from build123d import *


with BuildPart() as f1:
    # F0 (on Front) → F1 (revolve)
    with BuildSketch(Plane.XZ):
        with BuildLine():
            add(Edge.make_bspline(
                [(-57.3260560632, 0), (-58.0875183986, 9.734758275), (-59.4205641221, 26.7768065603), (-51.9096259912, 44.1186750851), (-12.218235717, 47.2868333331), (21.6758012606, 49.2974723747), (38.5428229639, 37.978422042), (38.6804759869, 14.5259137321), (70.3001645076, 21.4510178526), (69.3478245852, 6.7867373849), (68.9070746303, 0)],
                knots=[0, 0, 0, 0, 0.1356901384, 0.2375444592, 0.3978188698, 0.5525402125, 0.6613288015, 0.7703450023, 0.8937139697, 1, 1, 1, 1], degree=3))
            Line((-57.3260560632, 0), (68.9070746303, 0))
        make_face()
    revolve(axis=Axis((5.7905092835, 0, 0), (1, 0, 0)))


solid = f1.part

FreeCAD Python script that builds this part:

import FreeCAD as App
import Part
import Sketcher

doc = App.newDocument("Part")
body = doc.addObject("PartDesign::Body", "Body")

# Sketch on XZ plane
sketch1 = body.newObject("Sketcher::SketchObject", "Sketch")
sketch1.AttachmentSupport = (doc.getObject("XZ_Plane"), [""])
sketch1.MapMode = "FlatFace"
sketch1.addGeometry([
    Part.BSplineCurve([App.Vector(-57.326056, 0, 0), App.Vector(-58.087518, 9.734758, 0), App.Vector(-59.420564, 26.776807, 0), App.Vector(-51.909626, 44.118675, 0), App.Vector(-12.218236, 47.286833, 0), App.Vector(21.675801, 49.297472, 0), App.Vector(38.542823, 37.978422, 0), App.Vector(38.680476, 14.525914, 0), App.Vector(70.300165, 21.451018, 0), App.Vector(69.347825, 6.786737, 0), App.Vector(68.907075, 0, 0)], [4, 1, 1, 1, 1, 1, 1, 1, 4], [0, 0.135690138, 0.237544459, 0.39781887, 0.552540212, 0.661328801, 0.770345002, 0.89371397, 1], False, 3, [1, 1, 1, 1, 1, 1, 1, 1, 1, 1, 1], False),
    Part.LineSegment(App.Vector(-57.326056, 0, 0), App.Vector(68.907075, 0, 0)),
], False)
sketch1.addConstraint([
    Sketcher.Constraint("Block", 0),
    Sketcher.Constraint("Coincident", 0, 1, 1, 1),
    Sketcher.Constraint("Coincident", 1, 2, 0, 2),
])
revolution = body.newObject("PartDesign::Revolution", "Revolution")
revolution.Profile = sketch1
revolution.ReferenceAxis = (sketch1, ["H_Axis"])
revolution.Angle = 360

doc.recompute()
